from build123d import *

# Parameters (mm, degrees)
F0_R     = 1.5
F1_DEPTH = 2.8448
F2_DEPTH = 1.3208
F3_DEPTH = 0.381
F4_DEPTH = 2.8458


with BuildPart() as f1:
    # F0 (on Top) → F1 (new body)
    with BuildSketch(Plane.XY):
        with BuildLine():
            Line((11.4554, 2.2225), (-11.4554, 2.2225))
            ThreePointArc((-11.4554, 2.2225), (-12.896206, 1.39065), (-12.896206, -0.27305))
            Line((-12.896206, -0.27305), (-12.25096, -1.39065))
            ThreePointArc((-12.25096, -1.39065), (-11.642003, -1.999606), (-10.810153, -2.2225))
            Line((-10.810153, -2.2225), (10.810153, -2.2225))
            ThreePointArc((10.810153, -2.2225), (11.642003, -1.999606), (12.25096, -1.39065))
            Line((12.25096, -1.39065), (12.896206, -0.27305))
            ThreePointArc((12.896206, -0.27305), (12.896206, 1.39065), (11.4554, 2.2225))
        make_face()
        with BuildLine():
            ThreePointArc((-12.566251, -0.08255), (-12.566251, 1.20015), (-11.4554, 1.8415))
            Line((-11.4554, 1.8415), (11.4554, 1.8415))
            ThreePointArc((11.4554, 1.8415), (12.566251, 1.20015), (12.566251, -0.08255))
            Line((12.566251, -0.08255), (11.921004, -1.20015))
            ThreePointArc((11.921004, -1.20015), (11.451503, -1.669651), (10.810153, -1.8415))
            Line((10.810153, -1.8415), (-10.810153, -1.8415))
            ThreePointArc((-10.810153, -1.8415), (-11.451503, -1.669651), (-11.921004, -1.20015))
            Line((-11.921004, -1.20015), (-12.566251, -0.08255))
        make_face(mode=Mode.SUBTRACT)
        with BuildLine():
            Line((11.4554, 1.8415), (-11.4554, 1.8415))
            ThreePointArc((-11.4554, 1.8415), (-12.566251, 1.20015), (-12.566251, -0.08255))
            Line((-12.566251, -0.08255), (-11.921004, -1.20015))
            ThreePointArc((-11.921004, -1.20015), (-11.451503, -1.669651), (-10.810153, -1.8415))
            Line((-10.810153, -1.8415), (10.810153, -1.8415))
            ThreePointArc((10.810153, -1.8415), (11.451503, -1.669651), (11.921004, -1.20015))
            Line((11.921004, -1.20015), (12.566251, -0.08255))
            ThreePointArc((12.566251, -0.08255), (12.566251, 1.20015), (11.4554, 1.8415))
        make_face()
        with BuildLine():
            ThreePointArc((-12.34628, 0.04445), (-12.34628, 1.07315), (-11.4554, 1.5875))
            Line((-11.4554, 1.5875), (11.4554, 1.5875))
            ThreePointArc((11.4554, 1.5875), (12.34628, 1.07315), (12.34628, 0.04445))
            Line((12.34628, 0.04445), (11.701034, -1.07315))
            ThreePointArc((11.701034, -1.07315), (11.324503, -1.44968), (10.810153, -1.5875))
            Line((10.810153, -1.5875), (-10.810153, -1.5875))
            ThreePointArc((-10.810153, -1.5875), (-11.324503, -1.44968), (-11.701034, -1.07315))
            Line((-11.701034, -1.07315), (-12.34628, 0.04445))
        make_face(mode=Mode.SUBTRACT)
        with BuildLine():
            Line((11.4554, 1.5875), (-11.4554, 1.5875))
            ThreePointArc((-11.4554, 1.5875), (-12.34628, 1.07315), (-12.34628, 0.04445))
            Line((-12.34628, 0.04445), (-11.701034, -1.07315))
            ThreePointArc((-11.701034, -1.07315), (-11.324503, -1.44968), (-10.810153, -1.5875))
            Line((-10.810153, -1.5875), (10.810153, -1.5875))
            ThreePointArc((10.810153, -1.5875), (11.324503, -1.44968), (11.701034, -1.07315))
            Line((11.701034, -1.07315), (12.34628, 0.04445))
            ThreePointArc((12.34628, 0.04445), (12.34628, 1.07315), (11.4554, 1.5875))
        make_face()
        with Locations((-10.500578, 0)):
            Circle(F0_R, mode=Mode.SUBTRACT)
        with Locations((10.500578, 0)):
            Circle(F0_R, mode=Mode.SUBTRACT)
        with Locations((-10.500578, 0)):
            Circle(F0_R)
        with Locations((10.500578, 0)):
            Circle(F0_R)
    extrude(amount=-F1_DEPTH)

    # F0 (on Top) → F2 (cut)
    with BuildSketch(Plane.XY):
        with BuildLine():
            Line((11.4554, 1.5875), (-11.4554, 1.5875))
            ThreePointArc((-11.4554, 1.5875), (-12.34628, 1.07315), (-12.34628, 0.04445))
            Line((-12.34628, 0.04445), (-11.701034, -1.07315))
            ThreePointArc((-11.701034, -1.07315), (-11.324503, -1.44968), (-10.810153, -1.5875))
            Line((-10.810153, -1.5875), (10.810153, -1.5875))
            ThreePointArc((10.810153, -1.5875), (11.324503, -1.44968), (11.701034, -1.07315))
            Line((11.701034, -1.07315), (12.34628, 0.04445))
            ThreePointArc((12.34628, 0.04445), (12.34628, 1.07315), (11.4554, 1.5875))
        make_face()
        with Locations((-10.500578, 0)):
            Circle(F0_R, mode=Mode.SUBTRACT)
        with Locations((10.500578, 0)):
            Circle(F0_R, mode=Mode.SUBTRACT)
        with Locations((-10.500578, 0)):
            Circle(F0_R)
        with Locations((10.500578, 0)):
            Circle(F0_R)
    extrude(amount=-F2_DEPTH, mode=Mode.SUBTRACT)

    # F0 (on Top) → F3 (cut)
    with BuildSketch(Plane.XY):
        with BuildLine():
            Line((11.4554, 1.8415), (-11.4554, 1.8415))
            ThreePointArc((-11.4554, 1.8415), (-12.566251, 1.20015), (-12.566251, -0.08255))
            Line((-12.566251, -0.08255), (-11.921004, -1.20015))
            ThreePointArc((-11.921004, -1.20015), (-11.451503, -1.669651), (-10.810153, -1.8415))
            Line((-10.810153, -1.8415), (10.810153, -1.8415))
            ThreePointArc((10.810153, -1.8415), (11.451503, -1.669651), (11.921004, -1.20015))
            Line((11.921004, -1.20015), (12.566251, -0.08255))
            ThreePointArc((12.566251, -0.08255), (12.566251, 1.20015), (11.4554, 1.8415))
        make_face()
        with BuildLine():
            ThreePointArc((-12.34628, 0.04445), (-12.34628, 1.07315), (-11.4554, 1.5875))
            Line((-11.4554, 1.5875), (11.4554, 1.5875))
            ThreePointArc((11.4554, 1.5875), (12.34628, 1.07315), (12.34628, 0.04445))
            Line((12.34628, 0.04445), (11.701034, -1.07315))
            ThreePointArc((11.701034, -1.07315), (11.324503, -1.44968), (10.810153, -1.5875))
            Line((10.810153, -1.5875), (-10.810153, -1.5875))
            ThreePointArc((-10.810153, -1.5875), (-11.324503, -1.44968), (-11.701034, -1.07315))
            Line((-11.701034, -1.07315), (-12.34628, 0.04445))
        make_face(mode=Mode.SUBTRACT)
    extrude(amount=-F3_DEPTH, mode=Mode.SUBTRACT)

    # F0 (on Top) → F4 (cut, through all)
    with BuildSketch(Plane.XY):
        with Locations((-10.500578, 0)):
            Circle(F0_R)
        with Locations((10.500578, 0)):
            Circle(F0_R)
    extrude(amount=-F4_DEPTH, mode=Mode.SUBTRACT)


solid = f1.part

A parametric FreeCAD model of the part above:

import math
import FreeCAD as App
import Part
import Sketcher

V = App.Vector
Q = App.Units.Quantity

doc = App.newDocument("Part")
body = doc.addObject("PartDesign::Body", "Body")

# Sketch on XY plane
sketch1 = body.newObject("Sketcher::SketchObject", "Sketch")
sketch1.AttachmentSupport = (doc.getObject("XY_Plane"), [""])
sketch1.MapMode = "FlatFace"
sketch1.addGeometry([
    Part.LineSegment(V(11.5, 2.2, 0), V(-11.5, 2.2, 0)),  # 0
    Part.ArcOfCircle(Part.Circle(V(-11.5, 0.6, 0), V(0, 0, 1), 1.7), math.radians(90), math.radians(210)),  # 1
    Part.LineSegment(V(-12.9, -0.3, 0), V(-12.3, -1.4, 0)),  # 2
    Part.ArcOfCircle(Part.Circle(V(-10.8, -0.6, 0), V(0, 0, 1), 1.7), math.radians(-150), math.radians(-90)),  # 3
    Part.LineSegment(V(-10.8, -2.2, 0), V(10.8, -2.2, 0)),  # 4
    Part.ArcOfCircle(Part.Circle(V(10.8, -0.6, 0), V(0, 0, 1), 1.7), math.radians(-90), math.radians(-30)),  # 5
    Part.LineSegment(V(12.3, -1.4, 0), V(12.9, -0.3, 0)),  # 6
    Part.ArcOfCircle(Part.Circle(V(11.5, 0.6, 0), V(0, 0, 1), 1.7), math.radians(-30), math.radians(90)),  # 7
], False)
sketch1.addConstraint([
    Sketcher.Constraint("Tangent", 0, 2, 1, 1),
    Sketcher.Constraint("Tangent", 1, 2, 2, 1),
    Sketcher.Constraint("Tangent", 2, 2, 3, 1),
    Sketcher.Constraint("Tangent", 3, 2, 4, 1),
    Sketcher.Constraint("Tangent", 4, 2, 5, 1),
    Sketcher.Constraint("Tangent", 5, 2, 6, 1),
    Sketcher.Constraint("Tangent", 6, 2, 7, 1),
    Sketcher.Constraint("Tangent", 7, 2, 0, 1),
    Sketcher.Constraint("Horizontal", 0),
    Sketcher.Constraint("Horizontal", 4),
    Sketcher.Constraint("Equal", 3, 5),
    Sketcher.Constraint("Equal", 1, 7),
    Sketcher.Constraint("Symmetric", 2, 2, 5, 2, -2),
    Sketcher.Constraint("Radius", 1, Q("0.0655 in")),
    Sketcher.Constraint("Radius", 3, Q("0.0655002 in")),
    Sketcher.Constraint("DistanceX", 0, 2, 0, 1, Q("0.902 in")),
    Sketcher.Constraint("DistanceY", -1, 1, 1, 3, Q("0.022 in")),
    Sketcher.Constraint("DistanceY", 3, 3, -1, 1, Q("0.0219998 in")),
    Sketcher.Constraint("DistanceX", 4, 1, 4, 2, 21.620306),
])
pad1 = body.newObject("PartDesign::Pad", "Pad")
pad1.Profile = sketch1
pad1.Length = Q("0.112 in")
pad1.Reversed = True

# Sketch on XY plane
sketch2 = body.newObject("Sketcher::SketchObject", "Sketch001")
sketch2.AttachmentSupport = (doc.getObject("XY_Plane"), [""])
sketch2.MapMode = "FlatFace"
sketch2.addGeometry([
    Part.LineSegment(V(11.5, 1.6, 0), V(-11.5, 1.6, 0)),  # 0
    Part.ArcOfCircle(Part.Circle(V(-11.5, 0.6, 0), V(0, 0, 1), 1), math.radians(90), math.radians(210)),  # 1
    Part.LineSegment(V(-12.3, 0, 0), V(-11.7, -1.1, 0)),  # 2
    Part.ArcOfCircle(Part.Circle(V(-10.8, -0.6, 0), V(0, 0, 1), 1), math.radians(-150), math.radians(-90)),  # 3
    Part.LineSegment(V(-10.8, -1.6, 0), V(10.8, -1.6, 0)),  # 4
    Part.ArcOfCircle(Part.Circle(V(10.8, -0.6, 0), V(0, 0, 1), 1), math.radians(-90), math.radians(-30)),  # 5
    Part.LineSegment(V(11.7, -1.1, 0), V(12.3, 0, 0)),  # 6
    Part.ArcOfCircle(Part.Circle(V(11.5, 0.6, 0), V(0, 0, 1), 1), math.radians(-30), math.radians(90)),  # 7
], False)
sketch2.addConstraint([
    Sketcher.Constraint("Tangent", 0, 2, 1, 1),
    Sketcher.Constraint("Tangent", 1, 2, 2, 1),
    Sketcher.Constraint("Coincident", 2, 2, 3, 1),
    Sketcher.Constraint("Tangent", 3, 2, 4, 1),
    Sketcher.Constraint("Tangent", 4, 2, 5, 1),
    Sketcher.Constraint("Coincident", 5, 2, 6, 1),
    Sketcher.Constraint("Tangent", 6, 2, 7, 1),
    Sketcher.Constraint("Tangent", 7, 2, 0, 1),
    Sketcher.Constraint("Horizontal", 0),
    Sketcher.Constraint("Horizontal", 4),
    Sketcher.Constraint("Equal", 3, 5),
    Sketcher.Constraint("Equal", 1, 7),
    Sketcher.Constraint("Symmetric", 2, 2, 5, 2, -2),
    Sketcher.Constraint("Horizontal", 1, 2, 6, 2),
    Sketcher.Constraint("Radius", 1, Q("0.0405 in")),
    Sketcher.Constraint("Radius", 3, Q("0.0405002 in")),
    Sketcher.Constraint("DistanceX", 0, 2, 0, 1, Q("0.902 in")),
    Sketcher.Constraint("DistanceY", -1, 1, 1, 3, Q("0.022 in")),
    Sketcher.Constraint("DistanceY", 3, 3, -1, 1, Q("0.0219998 in")),
    Sketcher.Constraint("DistanceY", 2, 2, 1, 2, Q("0.044 in")),
    Sketcher.Constraint("DistanceX", 4, 1, 4, 2, 21.620306),
])
pocket1 = body.newObject("PartDesign::Pocket", "Pocket")
pocket1.Profile = sketch2
pocket1.Length = Q("0.052 in")

# Sketch on XY plane
sketch3 = body.newObject("Sketcher::SketchObject", "Sketch002")
sketch3.AttachmentSupport = (doc.getObject("XY_Plane"), [""])
sketch3.MapMode = "FlatFace"
sketch3.addGeometry([
    Part.LineSegment(V(11.5, 1.8, 0), V(-11.5, 1.8, 0)),  # 0
    Part.ArcOfCircle(Part.Circle(V(-11.5, 0.6, 0), V(0, 0, 1), 1.3), math.radians(90), math.radians(210)),  # 1
    Part.LineSegment(V(-12.6, -0.1, 0), V(-11.9, -1.2, 0)),  # 2
    Part.ArcOfCircle(Part.Circle(V(-10.8, -0.6, 0), V(0, 0, 1), 1.3), math.radians(-150), math.radians(-90)),  # 3
    Part.LineSegment(V(-10.8, -1.8, 0), V(10.8, -1.8, 0)),  # 4
    Part.ArcOfCircle(Part.Circle(V(10.8, -0.6, 0), V(0, 0, 1), 1.3), math.radians(-90), math.radians(-30)),  # 5
    Part.LineSegment(V(11.9, -1.2, 0), V(12.6, -0.1, 0)),  # 6
    Part.ArcOfCircle(Part.Circle(V(11.5, 0.6, 0), V(0, 0, 1), 1.3), math.radians(-30), math.radians(90)),  # 7
    Part.LineSegment(V(-11.7, -1.1, 0), V(-12.3, 0, 0)),  # 8
    Part.ArcOfCircle(Part.Circle(V(-11.5, 0.6, 0), V(0, 0, 1), 1), math.radians(90), math.radians(210)),  # 9
    Part.LineSegment(V(-11.5, 1.6, 0), V(11.5, 1.6, 0)),  # 10
    Part.ArcOfCircle(Part.Circle(V(11.5, 0.6, 0), V(0, 0, 1), 1), math.radians(-30), math.radians(90)),  # 11
    Part.LineSegment(V(12.3, 0, 0), V(11.7, -1.1, 0)),  # 12
    Part.ArcOfCircle(Part.Circle(V(10.8, -0.6, 0), V(0, 0, 1), 1), math.radians(-90), math.radians(-30)),  # 13
    Part.LineSegment(V(10.8, -1.6, 0), V(-10.8, -1.6, 0)),  # 14
    Part.ArcOfCircle(Part.Circle(V(-10.8, -0.6, 0), V(0, 0, 1), 1), math.radians(-150), math.radians(-90)),  # 15
], False)
sketch3.addConstraint([
    Sketcher.Constraint("Tangent", 0, 2, 1, 1),
    Sketcher.Constraint("Tangent", 1, 2, 2, 1),
    Sketcher.Constraint("Tangent", 2, 2, 3, 1),
    Sketcher.Constraint("Tangent", 3, 2, 4, 1),
    Sketcher.Constraint("Tangent", 4, 2, 5, 1),
    Sketcher.Constraint("Tangent", 5, 2, 6, 1),
    Sketcher.Constraint("Tangent", 6, 2, 7, 1),
    Sketcher.Constraint("Tangent", 7, 2, 0, 1),
    Sketcher.Constraint("Tangent", 8, 2, 9, 2),
    Sketcher.Constraint("Tangent", 9, 1, 10, 1),
    Sketcher.Constraint("Tangent", 10, 2, 11, 2),
    Sketcher.Constraint("Tangent", 11, 1, 12, 1),
    Sketcher.Constraint("Coincident", 12, 2, 13, 2),
    Sketcher.Constraint("Tangent", 13, 1, 14, 1),
    Sketcher.Constraint("Tangent", 14, 2, 15, 2),
    Sketcher.Constraint("Coincident", 15, 1, 8, 1),
    Sketcher.Constraint("Horizontal", 0),
    Sketcher.Constraint("Horizontal", 4),
    Sketcher.Constraint("Horizontal", 10),
    Sketcher.Constraint("Horizontal", 14),
    Sketcher.Constraint("Coincident", 9, 3, 1, 3),
    Sketcher.Constraint("Coincident", 11, 3, 7, 3),
    Sketcher.Constraint("Coincident", 13, 3, 5, 3),
    Sketcher.Constraint("Coincident", 15, 3, 3, 3),
    Sketcher.Constraint("Equal", 1, 3),
    Sketcher.Constraint("Equal", 3, 5),
    Sketcher.Constraint("Equal", 5, 7),
    Sketcher.Constraint("Symmetric", 2, 2, 5, 2, -2),
    Sketcher.Constraint("Parallel", 2, 8),
    Sketcher.Constraint("Horizontal", 12, 2, 15, 1),
    Sketcher.Constraint("Equal", 6, 8),
    Sketcher.Constraint("Angle", 2, Q("-59.999987 deg")),
    Sketcher.Constraint("Radius", 1, Q("0.0505 in")),
    Sketcher.Constraint("Radius", 9, Q("0.0405 in")),
    Sketcher.Constraint("DistanceX", 0, 2, 0, 1, Q("0.902 in")),
    Sketcher.Constraint("DistanceY", -1, 1, 1, 3, Q("0.022 in")),
    Sketcher.Constraint("DistanceY", 3, 3, -1, 1, Q("0.022 in")),
])
pocket2 = body.newObject("PartDesign::Pocket", "Pocket001")
pocket2.Profile = sketch3
pocket2.Length = Q("0.015 in")

# Sketch on XY plane
sketch4 = body.newObject("Sketcher::SketchObject", "Sketch003")
sketch4.AttachmentSupport = (doc.getObject("XY_Plane"), [""])
sketch4.MapMode = "FlatFace"
sketch4.addGeometry([
    Part.Circle(V(-10.5, 0, 0), V(0, 0, 1), 1.5),
    Part.Circle(V(10.5, 0, 0), V(0, 0, 1), 1.5),
], False)
sketch4.addConstraint([
    Sketcher.Constraint("Equal", 0, 1),
    Sketcher.Constraint("Symmetric", 0, 3, 1, 3, -1, 1),
    Sketcher.Constraint("PointOnObject", 0, 3, -1),
    Sketcher.Constraint("Diameter", 0, 3.0),
    Sketcher.Constraint("DistanceX", 0, 3, -1, 1, 10.500578),
])
pocket3 = body.newObject("PartDesign::Pocket", "Pocket002")
pocket3.Profile = sketch4
pocket3.Type = "ThroughAll"

doc.recompute()
